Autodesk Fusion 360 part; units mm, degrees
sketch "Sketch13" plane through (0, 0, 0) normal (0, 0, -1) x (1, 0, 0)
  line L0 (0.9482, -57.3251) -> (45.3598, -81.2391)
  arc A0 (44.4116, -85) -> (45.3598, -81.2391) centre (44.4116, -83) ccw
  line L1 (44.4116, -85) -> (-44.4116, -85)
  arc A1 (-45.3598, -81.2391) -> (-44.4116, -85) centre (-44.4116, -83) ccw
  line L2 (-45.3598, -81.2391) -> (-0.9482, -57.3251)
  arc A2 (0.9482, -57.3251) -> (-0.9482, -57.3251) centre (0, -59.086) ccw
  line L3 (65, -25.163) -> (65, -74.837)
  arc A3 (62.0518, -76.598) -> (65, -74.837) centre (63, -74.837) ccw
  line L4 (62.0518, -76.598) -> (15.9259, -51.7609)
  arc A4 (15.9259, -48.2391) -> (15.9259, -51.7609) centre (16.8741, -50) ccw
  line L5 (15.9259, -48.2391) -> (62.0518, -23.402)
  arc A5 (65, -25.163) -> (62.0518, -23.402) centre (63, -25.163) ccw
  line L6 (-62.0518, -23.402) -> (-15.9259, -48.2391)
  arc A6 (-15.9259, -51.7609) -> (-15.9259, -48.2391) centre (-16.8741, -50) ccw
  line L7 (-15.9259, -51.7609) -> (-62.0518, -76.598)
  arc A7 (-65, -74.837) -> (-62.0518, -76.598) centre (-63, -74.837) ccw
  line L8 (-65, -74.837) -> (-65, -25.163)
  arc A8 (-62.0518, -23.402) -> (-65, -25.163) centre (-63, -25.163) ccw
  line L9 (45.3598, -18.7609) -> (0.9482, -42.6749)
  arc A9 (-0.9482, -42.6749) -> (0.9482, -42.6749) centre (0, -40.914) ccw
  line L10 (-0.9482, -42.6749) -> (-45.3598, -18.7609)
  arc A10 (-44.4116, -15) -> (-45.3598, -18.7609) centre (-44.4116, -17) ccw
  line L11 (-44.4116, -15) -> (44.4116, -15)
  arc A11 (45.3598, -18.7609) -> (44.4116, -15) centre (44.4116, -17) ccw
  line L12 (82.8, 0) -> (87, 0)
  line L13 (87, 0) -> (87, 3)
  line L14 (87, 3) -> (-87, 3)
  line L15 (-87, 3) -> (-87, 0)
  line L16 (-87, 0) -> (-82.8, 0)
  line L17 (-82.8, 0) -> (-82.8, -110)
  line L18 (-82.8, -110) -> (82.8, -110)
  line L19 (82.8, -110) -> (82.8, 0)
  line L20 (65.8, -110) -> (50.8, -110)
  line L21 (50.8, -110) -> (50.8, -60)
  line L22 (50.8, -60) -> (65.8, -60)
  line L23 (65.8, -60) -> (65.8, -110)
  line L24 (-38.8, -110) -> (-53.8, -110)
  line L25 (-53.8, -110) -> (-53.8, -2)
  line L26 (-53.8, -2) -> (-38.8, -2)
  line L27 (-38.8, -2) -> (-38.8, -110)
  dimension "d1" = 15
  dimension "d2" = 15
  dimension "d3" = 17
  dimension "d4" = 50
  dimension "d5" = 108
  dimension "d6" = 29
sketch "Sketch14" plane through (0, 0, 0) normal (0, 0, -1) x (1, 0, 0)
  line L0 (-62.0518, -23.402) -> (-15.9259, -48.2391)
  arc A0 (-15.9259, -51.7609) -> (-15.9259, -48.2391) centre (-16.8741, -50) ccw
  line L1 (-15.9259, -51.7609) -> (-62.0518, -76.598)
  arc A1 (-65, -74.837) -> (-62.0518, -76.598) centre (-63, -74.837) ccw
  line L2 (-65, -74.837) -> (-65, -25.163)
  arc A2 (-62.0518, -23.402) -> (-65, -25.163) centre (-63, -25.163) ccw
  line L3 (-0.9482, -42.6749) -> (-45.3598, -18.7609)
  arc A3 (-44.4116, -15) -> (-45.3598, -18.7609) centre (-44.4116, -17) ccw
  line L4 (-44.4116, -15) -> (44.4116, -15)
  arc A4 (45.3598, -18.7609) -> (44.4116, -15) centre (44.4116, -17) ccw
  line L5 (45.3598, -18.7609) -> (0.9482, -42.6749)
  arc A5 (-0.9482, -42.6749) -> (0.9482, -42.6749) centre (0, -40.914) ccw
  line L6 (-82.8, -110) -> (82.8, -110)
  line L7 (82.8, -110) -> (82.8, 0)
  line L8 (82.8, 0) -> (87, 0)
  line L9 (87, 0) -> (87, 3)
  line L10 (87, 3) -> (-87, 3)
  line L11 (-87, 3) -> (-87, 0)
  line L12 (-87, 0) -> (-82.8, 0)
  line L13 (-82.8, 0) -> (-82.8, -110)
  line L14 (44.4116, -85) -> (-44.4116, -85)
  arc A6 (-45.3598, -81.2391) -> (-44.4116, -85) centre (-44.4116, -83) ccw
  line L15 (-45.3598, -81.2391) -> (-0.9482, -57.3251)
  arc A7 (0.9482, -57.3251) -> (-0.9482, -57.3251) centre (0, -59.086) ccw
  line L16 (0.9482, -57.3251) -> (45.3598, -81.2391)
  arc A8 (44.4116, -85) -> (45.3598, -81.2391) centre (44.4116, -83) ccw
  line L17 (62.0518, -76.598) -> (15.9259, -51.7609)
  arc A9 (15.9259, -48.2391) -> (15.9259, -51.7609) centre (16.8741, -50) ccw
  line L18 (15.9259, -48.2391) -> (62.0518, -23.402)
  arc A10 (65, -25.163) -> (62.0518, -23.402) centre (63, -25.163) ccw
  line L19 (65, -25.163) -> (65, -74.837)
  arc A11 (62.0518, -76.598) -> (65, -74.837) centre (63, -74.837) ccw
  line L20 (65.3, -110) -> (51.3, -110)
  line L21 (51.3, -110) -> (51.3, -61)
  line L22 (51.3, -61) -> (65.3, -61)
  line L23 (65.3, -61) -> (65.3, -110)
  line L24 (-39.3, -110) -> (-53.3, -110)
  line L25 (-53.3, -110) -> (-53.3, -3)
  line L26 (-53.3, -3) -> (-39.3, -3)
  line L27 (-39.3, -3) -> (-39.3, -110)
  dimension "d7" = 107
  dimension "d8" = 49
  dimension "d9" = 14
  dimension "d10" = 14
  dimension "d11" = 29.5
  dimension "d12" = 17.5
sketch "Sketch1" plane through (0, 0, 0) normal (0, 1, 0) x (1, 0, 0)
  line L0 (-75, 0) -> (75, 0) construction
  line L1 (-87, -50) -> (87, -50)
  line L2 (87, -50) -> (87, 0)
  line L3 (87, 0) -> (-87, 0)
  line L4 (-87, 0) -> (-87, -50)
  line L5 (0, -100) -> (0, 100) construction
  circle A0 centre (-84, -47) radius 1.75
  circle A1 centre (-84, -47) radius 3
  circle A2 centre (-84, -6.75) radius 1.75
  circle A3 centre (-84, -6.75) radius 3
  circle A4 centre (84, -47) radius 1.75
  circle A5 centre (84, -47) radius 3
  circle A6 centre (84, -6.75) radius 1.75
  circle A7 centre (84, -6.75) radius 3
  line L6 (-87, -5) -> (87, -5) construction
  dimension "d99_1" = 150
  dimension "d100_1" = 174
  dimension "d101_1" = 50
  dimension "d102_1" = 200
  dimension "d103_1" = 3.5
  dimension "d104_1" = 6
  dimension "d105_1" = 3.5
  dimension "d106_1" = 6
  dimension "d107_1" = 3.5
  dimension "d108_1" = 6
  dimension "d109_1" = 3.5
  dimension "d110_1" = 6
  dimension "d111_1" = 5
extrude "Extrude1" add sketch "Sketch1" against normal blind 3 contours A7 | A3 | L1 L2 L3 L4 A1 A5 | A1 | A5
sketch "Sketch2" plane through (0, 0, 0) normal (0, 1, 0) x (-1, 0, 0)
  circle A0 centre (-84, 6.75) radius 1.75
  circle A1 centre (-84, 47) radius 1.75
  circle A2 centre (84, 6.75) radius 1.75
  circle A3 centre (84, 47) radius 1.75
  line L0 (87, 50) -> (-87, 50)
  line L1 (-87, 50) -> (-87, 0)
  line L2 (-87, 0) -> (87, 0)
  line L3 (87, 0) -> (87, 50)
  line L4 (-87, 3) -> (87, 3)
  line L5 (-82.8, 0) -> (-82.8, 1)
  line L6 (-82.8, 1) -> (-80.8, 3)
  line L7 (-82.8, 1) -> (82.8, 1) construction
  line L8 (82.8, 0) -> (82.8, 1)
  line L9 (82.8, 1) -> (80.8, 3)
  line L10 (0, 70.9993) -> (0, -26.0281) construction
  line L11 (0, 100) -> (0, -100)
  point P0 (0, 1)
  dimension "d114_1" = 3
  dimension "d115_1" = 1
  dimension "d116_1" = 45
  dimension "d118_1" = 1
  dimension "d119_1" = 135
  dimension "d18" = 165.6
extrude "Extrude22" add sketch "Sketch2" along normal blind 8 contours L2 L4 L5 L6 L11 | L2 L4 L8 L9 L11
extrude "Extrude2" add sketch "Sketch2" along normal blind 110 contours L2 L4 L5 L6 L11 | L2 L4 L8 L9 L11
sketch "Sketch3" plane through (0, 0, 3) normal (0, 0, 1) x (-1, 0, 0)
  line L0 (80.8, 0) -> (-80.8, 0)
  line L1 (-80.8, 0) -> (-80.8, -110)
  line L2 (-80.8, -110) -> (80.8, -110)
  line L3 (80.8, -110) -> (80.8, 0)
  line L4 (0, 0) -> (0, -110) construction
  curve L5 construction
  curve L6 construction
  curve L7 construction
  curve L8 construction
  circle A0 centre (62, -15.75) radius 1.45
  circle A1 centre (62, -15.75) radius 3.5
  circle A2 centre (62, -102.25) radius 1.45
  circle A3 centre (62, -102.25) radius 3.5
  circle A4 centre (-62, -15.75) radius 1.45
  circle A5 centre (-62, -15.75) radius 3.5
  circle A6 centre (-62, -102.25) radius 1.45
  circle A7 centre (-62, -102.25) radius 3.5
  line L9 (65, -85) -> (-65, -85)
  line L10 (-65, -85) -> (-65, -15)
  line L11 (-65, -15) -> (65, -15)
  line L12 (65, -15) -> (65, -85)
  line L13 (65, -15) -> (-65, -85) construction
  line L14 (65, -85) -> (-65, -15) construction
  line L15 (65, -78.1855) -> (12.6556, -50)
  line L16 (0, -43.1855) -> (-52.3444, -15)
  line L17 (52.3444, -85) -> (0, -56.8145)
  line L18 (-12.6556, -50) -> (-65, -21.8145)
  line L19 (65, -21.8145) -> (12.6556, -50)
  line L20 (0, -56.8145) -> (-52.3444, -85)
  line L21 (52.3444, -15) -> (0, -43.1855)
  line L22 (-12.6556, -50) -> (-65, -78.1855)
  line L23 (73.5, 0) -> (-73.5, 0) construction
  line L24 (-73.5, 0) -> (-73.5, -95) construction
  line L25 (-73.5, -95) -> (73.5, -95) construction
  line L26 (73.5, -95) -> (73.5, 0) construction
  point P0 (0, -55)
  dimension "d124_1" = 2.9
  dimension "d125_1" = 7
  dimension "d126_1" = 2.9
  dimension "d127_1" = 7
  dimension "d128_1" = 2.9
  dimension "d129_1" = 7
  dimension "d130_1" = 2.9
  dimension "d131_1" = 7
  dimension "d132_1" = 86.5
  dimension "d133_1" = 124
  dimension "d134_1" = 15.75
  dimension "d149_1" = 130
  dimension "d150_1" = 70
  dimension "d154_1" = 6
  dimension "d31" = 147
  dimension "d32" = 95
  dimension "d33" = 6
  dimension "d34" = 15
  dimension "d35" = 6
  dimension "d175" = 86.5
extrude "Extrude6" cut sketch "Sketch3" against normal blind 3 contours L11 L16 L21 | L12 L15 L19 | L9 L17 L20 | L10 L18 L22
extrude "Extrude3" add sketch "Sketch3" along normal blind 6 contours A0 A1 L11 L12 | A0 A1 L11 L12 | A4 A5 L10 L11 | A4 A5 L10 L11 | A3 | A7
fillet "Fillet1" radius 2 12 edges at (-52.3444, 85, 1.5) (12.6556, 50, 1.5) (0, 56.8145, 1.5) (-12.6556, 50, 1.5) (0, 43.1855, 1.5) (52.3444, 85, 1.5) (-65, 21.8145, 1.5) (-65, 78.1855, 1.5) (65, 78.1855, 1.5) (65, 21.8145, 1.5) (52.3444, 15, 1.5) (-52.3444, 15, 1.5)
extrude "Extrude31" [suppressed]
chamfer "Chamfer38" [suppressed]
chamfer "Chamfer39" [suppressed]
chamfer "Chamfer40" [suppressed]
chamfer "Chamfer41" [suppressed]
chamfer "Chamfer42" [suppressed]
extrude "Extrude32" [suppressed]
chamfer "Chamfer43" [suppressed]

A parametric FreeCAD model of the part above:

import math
import FreeCAD as App
import Part
import Sketcher
from FreeCAD import Vector
Q = App.Units.Quantity


def edges_at(feature, points):
    """Names of the edges that pass closest to the given points."""
    edges = feature.Shape.Edges
    near = lambda p: min(range(len(edges)), key=lambda i: edges[i].distToShape(Part.Vertex(*p))[0])
    return sorted({f"Edge{near(p) + 1}" for p in points})

doc = App.newDocument("Part")
body = doc.addObject("PartDesign::Body", "Body")

sketch1 = body.newObject("Sketcher::SketchObject", "Sketch")
sketch1.AttachmentSupport = (doc.getObject("XZ_Plane"), [""])
sketch1.MapMode = "FlatFace"
sketch1.addGeometry(Part.ArcOfCircle(Part.Circle(Vector(-84, 47, 0), Vector(0, 0, 1), 3), math.radians(90), math.radians(180)), False)
sketch1.addGeometry(Part.LineSegment(Vector(-84, 50, 0), Vector(84, 50, 0)), False)
sketch1.addGeometry(Part.ArcOfCircle(Part.Circle(Vector(84, 47, 0), Vector(0, 0, 1), 3), math.radians(0), math.radians(90)), False)
sketch1.addGeometry(Part.LineSegment(Vector(87, 47, 0), Vector(87, 0, 0)), False)
sketch1.addGeometry(Part.LineSegment(Vector(87, 0, 0), Vector(-87, 0, 0)), False)
sketch1.addGeometry(Part.LineSegment(Vector(-87, 0, 0), Vector(-87, 47, 0)), False)
sketch1.addGeometry(Part.Circle(Vector(84, 6.75, 0), Vector(0, 0, 1), 1.75), False)
sketch1.addGeometry(Part.Circle(Vector(-84, 47, 0), Vector(0, 0, 1), 1.75), False)
sketch1.addGeometry(Part.Circle(Vector(84, 47, 0), Vector(0, 0, 1), 1.75), False)
sketch1.addGeometry(Part.Circle(Vector(-84, 6.75, 0), Vector(0, 0, 1), 1.75), False)
sketch1.addConstraint(Sketcher.Constraint("Tangent", 0, 1, 1, 1))
sketch1.addConstraint(Sketcher.Constraint("Tangent", 1, 2, 2, 2))
sketch1.addConstraint(Sketcher.Constraint("Tangent", 2, 1, 3, 1))
sketch1.addConstraint(Sketcher.Constraint("Coincident", 3, 2, 4, 1))
sketch1.addConstraint(Sketcher.Constraint("Coincident", 4, 2, 5, 1))
sketch1.addConstraint(Sketcher.Constraint("Tangent", 5, 2, 0, 2))
sketch1.addConstraint(Sketcher.Constraint("Horizontal", 1))
sketch1.addConstraint(Sketcher.Constraint("Vertical", 3))
sketch1.addConstraint(Sketcher.Constraint("Horizontal", 4))
sketch1.addConstraint(Sketcher.Constraint("Vertical", 5))
sketch1.addConstraint(Sketcher.Constraint("Coincident", 7, 3, 0, 3))
sketch1.addConstraint(Sketcher.Constraint("Coincident", 8, 3, 2, 3))
sketch1.addConstraint(Sketcher.Constraint("Equal", 0, 2))
sketch1.addConstraint(Sketcher.Constraint("Equal", 6, 7))
sketch1.addConstraint(Sketcher.Constraint("Equal", 7, 8))
sketch1.addConstraint(Sketcher.Constraint("Equal", 8, 9))
sketch1.addConstraint(Sketcher.Constraint("Symmetric", 3, 2, 4, 2, -1, 1))
sketch1.addConstraint(Sketcher.Constraint("Symmetric", 6, 3, 9, 3, -2))
sketch1.addConstraint(Sketcher.Constraint("Vertical", 2, 3, 6, 3))
sketch1.addConstraint(Sketcher.Constraint("Radius", 0, 3.0))
sketch1.addConstraint(Sketcher.Constraint("Diameter", 6, 3.5))
sketch1.addConstraint(Sketcher.Constraint("DistanceX", 4, 2, 4, 1, 174.0))
sketch1.addConstraint(Sketcher.Constraint("DistanceY", -1, 1, 0, 1, 50.0))
sketch1.addConstraint(Sketcher.Constraint("DistanceY", -1, 1, 6, 3, 6.75))
pad1 = body.newObject("PartDesign::Pad", "Pad")
pad1.Profile = sketch1
pad1.Length = 3

sketch2 = body.newObject("Sketcher::SketchObject", "Sketch001")
sketch2.AttachmentSupport = (doc.getObject("XZ_Plane"), [""])
sketch2.MapMode = "FlatFace"
sketch2.addGeometry(Part.LineSegment(Vector(82.8, 0, 0), Vector(-82.8, 0, 0)), False)
sketch2.addGeometry(Part.LineSegment(Vector(-82.8, 0, 0), Vector(-82.8, 1, 0)), False)
sketch2.addGeometry(Part.LineSegment(Vector(-82.8, 1, 0), Vector(-80.8, 3, 0)), False)
sketch2.addGeometry(Part.LineSegment(Vector(-80.8, 3, 0), Vector(80.8, 3, 0)), False)
sketch2.addGeometry(Part.LineSegment(Vector(80.8, 3, 0), Vector(82.8, 1, 0)), False)
sketch2.addGeometry(Part.LineSegment(Vector(82.8, 1, 0), Vector(82.8, 0, 0)), False)
sketch2.addConstraint(Sketcher.Constraint("Coincident", 0, 2, 1, 1))
sketch2.addConstraint(Sketcher.Constraint("Coincident", 1, 2, 2, 1))
sketch2.addConstraint(Sketcher.Constraint("Coincident", 2, 2, 3, 1))
sketch2.addConstraint(Sketcher.Constraint("Coincident", 3, 2, 4, 1))
sketch2.addConstraint(Sketcher.Constraint("Coincident", 4, 2, 5, 1))
sketch2.addConstraint(Sketcher.Constraint("Coincident", 5, 2, 0, 1))
sketch2.addConstraint(Sketcher.Constraint("Horizontal", 0))
sketch2.addConstraint(Sketcher.Constraint("Vertical", 1))
sketch2.addConstraint(Sketcher.Constraint("Horizontal", 3))
sketch2.addConstraint(Sketcher.Constraint("Vertical", 5))
sketch2.addConstraint(Sketcher.Constraint("Symmetric", 0, 2, 5, 2, -1, 1))
sketch2.addConstraint(Sketcher.Constraint("Perpendicular", 2, 4))
sketch2.addConstraint(Sketcher.Constraint("Horizontal", 1, 2, 4, 2))
sketch2.addConstraint(Sketcher.Constraint("Equal", 2, 4))
sketch2.addConstraint(Sketcher.Constraint("DistanceY", 1, 1, 1, 2, 1.0))
sketch2.addConstraint(Sketcher.Constraint("DistanceX", 0, 2, 0, 1, 165.6))
sketch2.addConstraint(Sketcher.Constraint("DistanceY", -1, 1, 2, 2, 3.0))
pad2 = body.newObject("PartDesign::Pad", "Pad001")
pad2.Profile = sketch2
pad2.Length = 8
pad2.Reversed = True

sketch3 = body.newObject("Sketcher::SketchObject", "Sketch002")
sketch3.AttachmentSupport = (doc.getObject("XZ_Plane"), [""])
sketch3.MapMode = "FlatFace"
sketch3.addGeometry(Part.LineSegment(Vector(82.8, 0, 0), Vector(-82.8, 0, 0)), False)
sketch3.addGeometry(Part.LineSegment(Vector(-82.8, 0, 0), Vector(-82.8, 1, 0)), False)
sketch3.addGeometry(Part.LineSegment(Vector(-82.8, 1, 0), Vector(-80.8, 3, 0)), False)
sketch3.addGeometry(Part.LineSegment(Vector(-80.8, 3, 0), Vector(80.8, 3, 0)), False)
sketch3.addGeometry(Part.LineSegment(Vector(80.8, 3, 0), Vector(82.8, 1, 0)), False)
sketch3.addGeometry(Part.LineSegment(Vector(82.8, 1, 0), Vector(82.8, 0, 0)), False)
sketch3.addConstraint(Sketcher.Constraint("Coincident", 0, 2, 1, 1))
sketch3.addConstraint(Sketcher.Constraint("Coincident", 1, 2, 2, 1))
sketch3.addConstraint(Sketcher.Constraint("Coincident", 2, 2, 3, 1))
sketch3.addConstraint(Sketcher.Constraint("Coincident", 3, 2, 4, 1))
sketch3.addConstraint(Sketcher.Constraint("Coincident", 4, 2, 5, 1))
sketch3.addConstraint(Sketcher.Constraint("Coincident", 5, 2, 0, 1))
sketch3.addConstraint(Sketcher.Constraint("Horizontal", 0))
sketch3.addConstraint(Sketcher.Constraint("Vertical", 1))
sketch3.addConstraint(Sketcher.Constraint("Horizontal", 3))
sketch3.addConstraint(Sketcher.Constraint("Vertical", 5))
sketch3.addConstraint(Sketcher.Constraint("Symmetric", 0, 2, 5, 2, -1, 1))
sketch3.addConstraint(Sketcher.Constraint("Perpendicular", 2, 4))
sketch3.addConstraint(Sketcher.Constraint("Horizontal", 1, 2, 4, 2))
sketch3.addConstraint(Sketcher.Constraint("Equal", 2, 4))
sketch3.addConstraint(Sketcher.Constraint("DistanceY", 1, 1, 1, 2, 1.0))
sketch3.addConstraint(Sketcher.Constraint("DistanceX", 0, 2, 0, 1, 165.6))
sketch3.addConstraint(Sketcher.Constraint("DistanceY", -1, 1, 2, 2, 3.0))
pad3 = body.newObject("PartDesign::Pad", "Pad002")
pad3.Profile = sketch3
pad3.Length = 110
pad3.Reversed = True

sketch4 = body.newObject("Sketcher::SketchObject", "Sketch003")
sketch4.AttachmentSupport = (doc.getObject("XY_Plane"), [""])
sketch4.MapMode = "FlatFace"
sketch4.AttachmentOffset = App.Placement(Vector(0, 0, 3), App.Rotation())
sketch4.addGeometry(Part.LineSegment(Vector(0, 43.1855, 0), Vector(-52.3444, 15, 0)), False)
sketch4.addGeometry(Part.LineSegment(Vector(-52.3444, 15, 0), Vector(52.3444, 15, 0)), False)
sketch4.addGeometry(Part.LineSegment(Vector(52.3444, 15, 0), Vector(0, 43.1855, 0)), False)
sketch4.addGeometry(Part.LineSegment(Vector(-65, 78.1855, 0), Vector(-65, 21.8145, 0)), False)
sketch4.addGeometry(Part.LineSegment(Vector(-65, 21.8145, 0), Vector(-12.6556, 50, 0)), False)
sketch4.addGeometry(Part.LineSegment(Vector(-12.6556, 50, 0), Vector(-65, 78.1855, 0)), False)
sketch4.addGeometry(Part.LineSegment(Vector(52.3444, 85, 0), Vector(-52.3444, 85, 0)), False)
sketch4.addGeometry(Part.LineSegment(Vector(-52.3444, 85, 0), Vector(0, 56.8145, 0)), False)
sketch4.addGeometry(Part.LineSegment(Vector(0, 56.8145, 0), Vector(52.3444, 85, 0)), False)
sketch4.addGeometry(Part.LineSegment(Vector(12.6556, 50, 0), Vector(65, 21.8145, 0)), False)
sketch4.addGeometry(Part.LineSegment(Vector(65, 21.8145, 0), Vector(65, 78.1855, 0)), False)
sketch4.addGeometry(Part.LineSegment(Vector(65, 78.1855, 0), Vector(12.6556, 50, 0)), False)
sketch4.addConstraint(Sketcher.Constraint("Coincident", 0, 2, 1, 1))
sketch4.addConstraint(Sketcher.Constraint("Coincident", 1, 2, 2, 1))
sketch4.addConstraint(Sketcher.Constraint("Coincident", 2, 2, 0, 1))
sketch4.addConstraint(Sketcher.Constraint("Coincident", 3, 2, 4, 1))
sketch4.addConstraint(Sketcher.Constraint("Coincident", 4, 2, 5, 1))
sketch4.addConstraint(Sketcher.Constraint("Coincident", 5, 2, 3, 1))
sketch4.addConstraint(Sketcher.Constraint("Coincident", 6, 2, 7, 1))
sketch4.addConstraint(Sketcher.Constraint("Coincident", 7, 2, 8, 1))
sketch4.addConstraint(Sketcher.Constraint("Coincident", 8, 2, 6, 1))
sketch4.addConstraint(Sketcher.Constraint("Coincident", 9, 2, 10, 1))
sketch4.addConstraint(Sketcher.Constraint("Coincident", 10, 2, 11, 1))
sketch4.addConstraint(Sketcher.Constraint("Coincident", 11, 2, 9, 1))
sketch4.addConstraint(Sketcher.Constraint("Horizontal", 1))
sketch4.addConstraint(Sketcher.Constraint("Vertical", 3))
sketch4.addConstraint(Sketcher.Constraint("Horizontal", 6))
sketch4.addConstraint(Sketcher.Constraint("Vertical", 10))
sketch4.addConstraint(Sketcher.Constraint("Symmetric", 3, 2, 9, 2, -2))
sketch4.addConstraint(Sketcher.Constraint("Symmetric", 4, 2, 11, 2, -2))
sketch4.addConstraint(Sketcher.Constraint("PointOnObject", 2, 2, -2))
sketch4.addConstraint(Sketcher.Constraint("PointOnObject", 7, 2, -2))
sketch4.addConstraint(Sketcher.Constraint("Parallel", 0, 4))
sketch4.addConstraint(Sketcher.Constraint("Parallel", 2, 5))
sketch4.addConstraint(Sketcher.Constraint("Parallel", 5, 7))
sketch4.addConstraint(Sketcher.Constraint("Parallel", 4, 8))
sketch4.addConstraint(Sketcher.Constraint("Parallel", 7, 9))
sketch4.addConstraint(Sketcher.Constraint("Parallel", 8, 11))
sketch4.addConstraint(Sketcher.Constraint("Vertical", 0, 2, 6, 2))
sketch4.addConstraint(Sketcher.Constraint("Equal", 2, 4))
sketch4.addConstraint(Sketcher.Constraint("DistanceY", -1, 1, 0, 2, 15.0))
sketch4.addConstraint(Sketcher.Constraint("DistanceY", 0, 2, 6, 2, 70.0))
sketch4.addConstraint(Sketcher.Constraint("DistanceX", 3, 2, -1, 1, 65.0))
sketch4.addConstraint(Sketcher.Constraint("DistanceY", -1, 1, 4, 2, 50.0))
sketch4.addConstraint(Sketcher.Constraint("Angle", 0, Q("-151.6992 deg")))
sketch4.addConstraint(Sketcher.Constraint("DistanceY", 3, 2, 3, 1, 56.371))
pocket1 = body.newObject("PartDesign::Pocket", "Pocket")
pocket1.Profile = sketch4
pocket1.Length = 3

sketch5 = body.newObject("Sketcher::SketchObject", "Sketch004")
sketch5.AttachmentSupport = (doc.getObject("XY_Plane"), [""])
sketch5.MapMode = "FlatFace"
sketch5.AttachmentOffset = App.Placement(Vector(0, 0, 3), App.Rotation())
sketch5.addGeometry(Part.Circle(Vector(-62, 15.75, 0), Vector(0, 0, 1), 3.5), False)
sketch5.addGeometry(Part.Circle(Vector(-62, 15.75, 0), Vector(0, 0, 1), 1.45), False)
sketch5.addGeometry(Part.Circle(Vector(62, 15.75, 0), Vector(0, 0, 1), 3.5), False)
sketch5.addGeometry(Part.Circle(Vector(62, 15.75, 0), Vector(0, 0, 1), 1.45), False)
sketch5.addGeometry(Part.Circle(Vector(-62, 102.25, 0), Vector(0, 0, 1), 3.5), False)
sketch5.addGeometry(Part.Circle(Vector(-62, 102.25, 0), Vector(0, 0, 1), 1.45), False)
sketch5.addGeometry(Part.Circle(Vector(62, 102.25, 0), Vector(0, 0, 1), 3.5), False)
sketch5.addGeometry(Part.Circle(Vector(62, 102.25, 0), Vector(0, 0, 1), 1.45), False)
sketch5.addConstraint(Sketcher.Constraint("Coincident", 1, 3, 0, 3))
sketch5.addConstraint(Sketcher.Constraint("Coincident", 3, 3, 2, 3))
sketch5.addConstraint(Sketcher.Constraint("Coincident", 5, 3, 4, 3))
sketch5.addConstraint(Sketcher.Constraint("Coincident", 7, 3, 6, 3))
sketch5.addConstraint(Sketcher.Constraint("Equal", 0, 2))
sketch5.addConstraint(Sketcher.Constraint("Equal", 1, 3))
sketch5.addConstraint(Sketcher.Constraint("Equal", 2, 4))
sketch5.addConstraint(Sketcher.Constraint("Equal", 3, 5))
sketch5.addConstraint(Sketcher.Constraint("Equal", 4, 6))
sketch5.addConstraint(Sketcher.Constraint("Equal", 5, 7))
sketch5.addConstraint(Sketcher.Constraint("Symmetric", 0, 3, 2, 3, -2))
sketch5.addConstraint(Sketcher.Constraint("Symmetric", 4, 3, 6, 3, -2))
sketch5.addConstraint(Sketcher.Constraint("Vertical", 1, 3, 4, 3))
sketch5.addConstraint(Sketcher.Constraint("Diameter", 0, 7.0))
sketch5.addConstraint(Sketcher.Constraint("Diameter", 1, 2.9))
sketch5.addConstraint(Sketcher.Constraint("DistanceX", 0, 3, 2, 3, 124.0))
sketch5.addConstraint(Sketcher.Constraint("DistanceY", 0, 3, 4, 3, 86.5))
sketch5.addConstraint(Sketcher.Constraint("DistanceY", -1, 1, 0, 3, 15.75))
pad4 = body.newObject("PartDesign::Pad", "Pad003")
pad4.Profile = sketch5
pad4.Length = 6
doc.recompute()

fillet = body.newObject("PartDesign::Fillet", "Fillet")
fillet.Base = (pad4, edges_at(pad4, [
    (-52.344, 85, 1.5),
    (12.656, 50, 1.5),
    (0, 56.815, 1.5),
    (-12.656, 50, 1.5),
    (0, 43.185, 1.5),
    (52.344, 85, 1.5),
    (-65, 21.814, 1.5),
    (-65, 78.186, 1.5),
    (65, 78.186, 1.5),
    (65, 21.814, 1.5),
    (52.344, 15, 1.5),
    (-52.344, 15, 1.5),
]))
fillet.Radius = 2

doc.recompute()
